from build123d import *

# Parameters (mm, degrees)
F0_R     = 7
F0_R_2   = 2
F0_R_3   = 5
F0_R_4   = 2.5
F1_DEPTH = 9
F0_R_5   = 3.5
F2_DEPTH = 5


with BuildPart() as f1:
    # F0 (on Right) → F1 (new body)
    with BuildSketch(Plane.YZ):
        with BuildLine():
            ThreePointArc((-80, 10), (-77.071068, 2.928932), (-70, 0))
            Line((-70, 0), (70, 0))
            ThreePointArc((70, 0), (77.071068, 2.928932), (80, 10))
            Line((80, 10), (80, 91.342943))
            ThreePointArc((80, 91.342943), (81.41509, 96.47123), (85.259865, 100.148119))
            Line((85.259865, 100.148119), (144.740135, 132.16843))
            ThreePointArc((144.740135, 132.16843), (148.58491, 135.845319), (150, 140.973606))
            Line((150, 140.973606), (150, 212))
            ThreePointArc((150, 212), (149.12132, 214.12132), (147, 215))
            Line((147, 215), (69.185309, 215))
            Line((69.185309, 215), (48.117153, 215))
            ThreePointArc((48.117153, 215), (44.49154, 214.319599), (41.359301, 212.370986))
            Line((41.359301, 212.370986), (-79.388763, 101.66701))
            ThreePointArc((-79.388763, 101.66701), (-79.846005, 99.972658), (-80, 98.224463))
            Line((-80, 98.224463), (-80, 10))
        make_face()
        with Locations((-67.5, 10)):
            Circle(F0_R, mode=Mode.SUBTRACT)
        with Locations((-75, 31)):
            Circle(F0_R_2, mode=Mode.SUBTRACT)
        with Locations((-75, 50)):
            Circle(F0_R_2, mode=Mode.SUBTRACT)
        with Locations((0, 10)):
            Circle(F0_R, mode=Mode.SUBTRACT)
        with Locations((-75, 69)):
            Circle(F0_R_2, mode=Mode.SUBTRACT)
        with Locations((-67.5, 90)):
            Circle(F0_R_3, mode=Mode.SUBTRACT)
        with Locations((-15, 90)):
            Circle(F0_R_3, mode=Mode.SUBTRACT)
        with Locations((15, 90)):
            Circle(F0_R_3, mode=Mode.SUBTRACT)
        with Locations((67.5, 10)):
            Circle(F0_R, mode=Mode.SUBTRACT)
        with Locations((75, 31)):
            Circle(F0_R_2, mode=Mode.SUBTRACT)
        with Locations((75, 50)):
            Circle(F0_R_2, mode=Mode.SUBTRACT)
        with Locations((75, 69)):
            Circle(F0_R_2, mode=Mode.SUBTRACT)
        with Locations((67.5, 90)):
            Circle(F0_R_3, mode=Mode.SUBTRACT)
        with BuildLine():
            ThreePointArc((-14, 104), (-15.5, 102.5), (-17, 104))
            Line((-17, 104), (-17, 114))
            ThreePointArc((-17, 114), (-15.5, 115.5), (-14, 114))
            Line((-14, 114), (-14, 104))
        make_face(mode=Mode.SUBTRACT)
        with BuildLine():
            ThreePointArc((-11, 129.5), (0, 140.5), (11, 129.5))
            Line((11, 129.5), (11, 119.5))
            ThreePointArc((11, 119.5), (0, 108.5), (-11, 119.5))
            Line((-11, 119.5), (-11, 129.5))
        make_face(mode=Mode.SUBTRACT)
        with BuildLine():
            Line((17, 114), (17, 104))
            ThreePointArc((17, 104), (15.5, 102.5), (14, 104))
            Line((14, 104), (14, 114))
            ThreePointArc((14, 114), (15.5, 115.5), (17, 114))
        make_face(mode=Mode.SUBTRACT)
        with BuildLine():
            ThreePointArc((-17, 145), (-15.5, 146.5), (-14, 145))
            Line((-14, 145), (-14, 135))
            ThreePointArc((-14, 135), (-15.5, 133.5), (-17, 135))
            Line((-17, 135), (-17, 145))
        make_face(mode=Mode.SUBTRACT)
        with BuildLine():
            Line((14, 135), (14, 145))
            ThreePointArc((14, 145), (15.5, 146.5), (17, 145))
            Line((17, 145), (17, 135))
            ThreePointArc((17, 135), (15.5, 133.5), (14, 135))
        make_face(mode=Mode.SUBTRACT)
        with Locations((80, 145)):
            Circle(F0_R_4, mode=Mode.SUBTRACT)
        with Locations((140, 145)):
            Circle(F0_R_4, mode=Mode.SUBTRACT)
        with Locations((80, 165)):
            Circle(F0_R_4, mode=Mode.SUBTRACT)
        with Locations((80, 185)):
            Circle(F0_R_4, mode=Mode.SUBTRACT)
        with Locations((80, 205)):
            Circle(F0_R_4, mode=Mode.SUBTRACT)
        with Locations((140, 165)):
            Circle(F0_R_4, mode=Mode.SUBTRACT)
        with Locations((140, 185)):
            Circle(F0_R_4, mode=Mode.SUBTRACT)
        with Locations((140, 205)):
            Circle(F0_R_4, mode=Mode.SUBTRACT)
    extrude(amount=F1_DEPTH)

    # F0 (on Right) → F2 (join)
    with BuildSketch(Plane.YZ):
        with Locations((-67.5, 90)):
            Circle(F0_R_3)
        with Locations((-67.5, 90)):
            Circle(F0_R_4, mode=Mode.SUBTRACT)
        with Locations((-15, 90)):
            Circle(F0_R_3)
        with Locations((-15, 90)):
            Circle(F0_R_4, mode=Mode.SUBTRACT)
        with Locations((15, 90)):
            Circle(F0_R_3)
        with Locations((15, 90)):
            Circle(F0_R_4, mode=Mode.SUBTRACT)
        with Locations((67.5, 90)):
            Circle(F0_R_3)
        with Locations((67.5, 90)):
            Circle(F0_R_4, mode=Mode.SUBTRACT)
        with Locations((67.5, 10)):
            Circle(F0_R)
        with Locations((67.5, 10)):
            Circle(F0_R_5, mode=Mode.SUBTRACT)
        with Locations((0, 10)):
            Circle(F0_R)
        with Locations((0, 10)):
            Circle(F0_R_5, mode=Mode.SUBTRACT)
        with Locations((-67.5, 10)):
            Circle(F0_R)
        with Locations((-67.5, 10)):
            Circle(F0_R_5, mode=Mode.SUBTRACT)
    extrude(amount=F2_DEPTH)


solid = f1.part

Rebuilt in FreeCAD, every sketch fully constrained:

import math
import FreeCAD as App
import Part
import Sketcher
Q = App.Units.Quantity

doc = App.newDocument("Part")
body = doc.addObject("PartDesign::Body", "Body")

# Sketch on YZ plane
sketch1 = doc.addObject("Sketcher::SketchObject", "Sketch")
body.addObject(sketch1)
sketch1.AttachmentSupport = (doc.YZ_Plane, [""])
sketch1.MapMode = "FlatFace"
sketch1.addGeometry([
    Part.ArcOfCircle(Part.Circle(App.Vector(-70.000001, 9.999999, 0), App.Vector(0, 0, 1), 9.999999), math.radians(179.999996), math.radians(270.000004)),  # 0
    Part.LineSegment(App.Vector(-70, 0, 0), App.Vector(70, 0, 0)),  # 1
    Part.ArcOfCircle(Part.Circle(App.Vector(70.000001, 9.999999, 0), App.Vector(0, 0, 1), 9.999999), math.radians(-90.000004), math.radians(0.000004)),  # 2
    Part.LineSegment(App.Vector(80, 10, 0), App.Vector(80, 91.342943, 0)),  # 3
    Part.ArcOfCircle(Part.Circle(App.Vector(89.999999, 91.342944, 0), App.Vector(0, 0, 1), 9.999999), math.radians(118.295134), math.radians(180.000006)),  # 4
    Part.LineSegment(App.Vector(85.259865, 100.148119, 0), App.Vector(144.740135, 132.16843, 0)),  # 5
    Part.ArcOfCircle(Part.Circle(App.Vector(140.000001, 140.973605, 0), App.Vector(0, 0, 1), 9.999999), math.radians(-61.704866), math.radians(0.000006)),  # 6
    Part.LineSegment(App.Vector(150, 140.973606, 0), App.Vector(150, 212, 0)),  # 7
    Part.ArcOfCircle(Part.Circle(App.Vector(146.999999, 211.999999, 0), App.Vector(0, 0, 1), 3.000001), math.radians(0.000022), math.radians(89.999978)),  # 8
    Part.LineSegment(App.Vector(147, 215, 0), App.Vector(48.117153, 215, 0)),  # 9
    Part.ArcOfCircle(Part.Circle(App.Vector(48.117154, 204.999997, 0), App.Vector(0, 0, 1), 10.000003), math.radians(90.000007), math.radians(132.51515)),  # 10
    Part.LineSegment(App.Vector(41.359301, 212.370986, 0), App.Vector(-79.388763, 101.66701, 0)),  # 11
    Part.ArcOfCircle(Part.Circle(App.Vector(-70, 98.224463, 0), App.Vector(0, 0, 1), 10), math.radians(159.863694), math.radians(180)),  # 12
    Part.LineSegment(App.Vector(-80, 98.224463, 0), App.Vector(-80, 10, 0)),  # 13
    Part.Circle(App.Vector(-67.5, 10, 0), App.Vector(0, 0, 1), 7),  # 14
    Part.Circle(App.Vector(-75, 31, 0), App.Vector(0, 0, 1), 2),  # 15
    Part.Circle(App.Vector(-75, 50, 0), App.Vector(0, 0, 1), 2),  # 16
    Part.Circle(App.Vector(0, 10, 0), App.Vector(0, 0, 1), 7),  # 17
    Part.Circle(App.Vector(-75, 69, 0), App.Vector(0, 0, 1), 2),  # 18
    Part.Circle(App.Vector(-67.5, 90, 0), App.Vector(0, 0, 1), 5),  # 19
    Part.Circle(App.Vector(-15, 90, 0), App.Vector(0, 0, 1), 5),  # 20
    Part.Circle(App.Vector(15, 90, 0), App.Vector(0, 0, 1), 5),  # 21
    Part.Circle(App.Vector(67.5, 10, 0), App.Vector(0, 0, 1), 7),  # 22
    Part.Circle(App.Vector(75, 31, 0), App.Vector(0, 0, 1), 2),  # 23
    Part.Circle(App.Vector(75, 50, 0), App.Vector(0, 0, 1), 2),  # 24
    Part.Circle(App.Vector(75, 69, 0), App.Vector(0, 0, 1), 2),  # 25
    Part.Circle(App.Vector(67.5, 90, 0), App.Vector(0, 0, 1), 5),  # 26
    Part.LineSegment(App.Vector(-14, 114, 0), App.Vector(-14, 104, 0)),  # 27
    Part.ArcOfCircle(Part.Circle(App.Vector(-15.5, 104, 0), App.Vector(0, 0, 1), 1.5), math.radians(180), math.radians(360)),  # 28
    Part.LineSegment(App.Vector(-17, 104, 0), App.Vector(-17, 114, 0)),  # 29
    Part.ArcOfCircle(Part.Circle(App.Vector(-15.5, 114, 0), App.Vector(0, 0, 1), 1.5), math.radians(0), math.radians(180)),  # 30
    Part.LineSegment(App.Vector(-11, 119.5, 0), App.Vector(-11, 129.5, 0)),  # 31
    Part.ArcOfCircle(Part.Circle(App.Vector(0, 129.5, 0), App.Vector(0, 0, 1), 11), math.radians(0), math.radians(180)),  # 32
    Part.LineSegment(App.Vector(11, 129.5, 0), App.Vector(11, 119.5, 0)),  # 33
    Part.ArcOfCircle(Part.Circle(App.Vector(0, 119.5, 0), App.Vector(0, 0, 1), 11), math.radians(180), math.radians(360)),  # 34
    Part.ArcOfCircle(Part.Circle(App.Vector(15.5, 114, 0), App.Vector(0, 0, 1), 1.5), math.radians(0), math.radians(180)),  # 35
    Part.LineSegment(App.Vector(17, 114, 0), App.Vector(17, 104, 0)),  # 36
    Part.ArcOfCircle(Part.Circle(App.Vector(15.5, 104, 0), App.Vector(0, 0, 1), 1.5), math.radians(180), math.radians(360)),  # 37
    Part.LineSegment(App.Vector(14, 104, 0), App.Vector(14, 114, 0)),  # 38
    Part.LineSegment(App.Vector(-17, 135, 0), App.Vector(-17, 145, 0)),  # 39
    Part.ArcOfCircle(Part.Circle(App.Vector(-15.5, 145, 0), App.Vector(0, 0, 1), 1.5), math.radians(0), math.radians(180)),  # 40
    Part.LineSegment(App.Vector(-14, 145, 0), App.Vector(-14, 135, 0)),  # 41
    Part.ArcOfCircle(Part.Circle(App.Vector(-15.5, 135, 0), App.Vector(0, 0, 1), 1.5), math.radians(180), math.radians(360)),  # 42
    Part.ArcOfCircle(Part.Circle(App.Vector(15.5, 135, 0), App.Vector(0, 0, 1), 1.5), math.radians(180), math.radians(360)),  # 43
    Part.LineSegment(App.Vector(14, 135, 0), App.Vector(14, 145, 0)),  # 44
    Part.ArcOfCircle(Part.Circle(App.Vector(15.5, 145, 0), App.Vector(0, 0, 1), 1.5), math.radians(0), math.radians(180)),  # 45
    Part.LineSegment(App.Vector(17, 145, 0), App.Vector(17, 135, 0)),  # 46
    Part.Circle(App.Vector(80, 145, 0), App.Vector(0, 0, 1), 2.5),  # 47
    Part.Circle(App.Vector(140, 145, 0), App.Vector(0, 0, 1), 2.5),  # 48
    Part.Circle(App.Vector(80, 165, 0), App.Vector(0, 0, 1), 2.5),  # 49
    Part.Circle(App.Vector(80, 185, 0), App.Vector(0, 0, 1), 2.5),  # 50
    Part.Circle(App.Vector(80, 205, 0), App.Vector(0, 0, 1), 2.5),  # 51
    Part.Circle(App.Vector(140, 165, 0), App.Vector(0, 0, 1), 2.5),  # 52
    Part.Circle(App.Vector(140, 185, 0), App.Vector(0, 0, 1), 2.5),  # 53
    Part.Circle(App.Vector(140, 205, 0), App.Vector(0, 0, 1), 2.5),  # 54
], False)
sketch1.addConstraint([
    Sketcher.Constraint("Coincident", 0, 2, 1, 1),
    Sketcher.Constraint("Coincident", 1, 2, 2, 1),
    Sketcher.Constraint("Coincident", 2, 2, 3, 1),
    Sketcher.Constraint("Coincident", 3, 2, 4, 2),
    Sketcher.Constraint("Coincident", 4, 1, 5, 1),
    Sketcher.Constraint("Coincident", 5, 2, 6, 1),
    Sketcher.Constraint("Coincident", 6, 2, 7, 1),
    Sketcher.Constraint("Coincident", 7, 2, 8, 1),
    Sketcher.Constraint("Coincident", 8, 2, 9, 1),
    Sketcher.Constraint("Coincident", 9, 2, 10, 1),
    Sketcher.Constraint("Coincident", 10, 2, 11, 1),
    Sketcher.Constraint("Coincident", 11, 2, 12, 1),
    Sketcher.Constraint("Coincident", 12, 2, 13, 1),
    Sketcher.Constraint("Coincident", 13, 2, 0, 1),
    Sketcher.Constraint("Coincident", 27, 2, 28, 2),
    Sketcher.Constraint("Coincident", 28, 1, 29, 1),
    Sketcher.Constraint("Coincident", 29, 2, 30, 2),
    Sketcher.Constraint("Coincident", 30, 1, 27, 1),
    Sketcher.Constraint("Coincident", 31, 2, 32, 2),
    Sketcher.Constraint("Coincident", 32, 1, 33, 1),
    Sketcher.Constraint("Coincident", 33, 2, 34, 2),
    Sketcher.Constraint("Coincident", 34, 1, 31, 1),
    Sketcher.Constraint("Coincident", 35, 1, 36, 1),
    Sketcher.Constraint("Coincident", 36, 2, 37, 2),
    Sketcher.Constraint("Coincident", 37, 1, 38, 1),
    Sketcher.Constraint("Coincident", 38, 2, 35, 2),
    Sketcher.Constraint("Coincident", 39, 2, 40, 2),
    Sketcher.Constraint("Coincident", 40, 1, 41, 1),
    Sketcher.Constraint("Coincident", 41, 2, 42, 2),
    Sketcher.Constraint("Coincident", 42, 1, 39, 1),
    Sketcher.Constraint("Coincident", 43, 1, 44, 1),
    Sketcher.Constraint("Coincident", 44, 2, 45, 2),
    Sketcher.Constraint("Coincident", 45, 1, 46, 1),
    Sketcher.Constraint("Coincident", 46, 2, 43, 2),
    Sketcher.Constraint("Horizontal", 1),
    Sketcher.Constraint("Vertical", 3),
    Sketcher.Constraint("Vertical", 7),
    Sketcher.Constraint("Horizontal", 9),
    Sketcher.Constraint("Vertical", 13),
    Sketcher.Constraint("Vertical", 27),
    Sketcher.Constraint("Vertical", 29),
    Sketcher.Constraint("Vertical", 31),
    Sketcher.Constraint("Vertical", 33),
    Sketcher.Constraint("Vertical", 36),
    Sketcher.Constraint("Vertical", 38),
    Sketcher.Constraint("Vertical", 39),
    Sketcher.Constraint("Vertical", 41),
    Sketcher.Constraint("Vertical", 44),
    Sketcher.Constraint("Vertical", 46),
    Sketcher.Constraint("PointOnObject", 17, 3, -2),
    Sketcher.Constraint("PointOnObject", 32, 3, -2),
    Sketcher.Constraint("PointOnObject", 0, 2, -1),
    Sketcher.Constraint("Diameter", 14, Q("14 mm")),
    Sketcher.Constraint("Diameter", 15, Q("4 mm")),
    Sketcher.Constraint("Diameter", 16, Q("4 mm")),
    Sketcher.Constraint("Diameter", 17, Q("14 mm")),
    Sketcher.Constraint("Diameter", 18, Q("4 mm")),
    Sketcher.Constraint("Diameter", 19, Q("10 mm")),
    Sketcher.Constraint("Diameter", 20, Q("10 mm")),
    Sketcher.Constraint("Diameter", 21, Q("10 mm")),
    Sketcher.Constraint("Diameter", 22, Q("14 mm")),
    Sketcher.Constraint("Diameter", 23, Q("4 mm")),
    Sketcher.Constraint("Diameter", 24, Q("4 mm")),
    Sketcher.Constraint("Diameter", 25, Q("4 mm")),
    Sketcher.Constraint("Diameter", 26, Q("10 mm")),
    Sketcher.Constraint("Diameter", 47, Q("5 mm")),
    Sketcher.Constraint("Diameter", 48, Q("5 mm")),
    Sketcher.Constraint("Diameter", 49, Q("5 mm")),
    Sketcher.Constraint("Diameter", 50, Q("5 mm")),
    Sketcher.Constraint("Diameter", 51, Q("5 mm")),
    Sketcher.Constraint("Diameter", 52, Q("5 mm")),
    Sketcher.Constraint("Diameter", 53, Q("5 mm")),
    Sketcher.Constraint("Diameter", 54, Q("5 mm")),
    Sketcher.Constraint("Radius", 0, Q("9.999999 mm")),
    Sketcher.Constraint("Radius", 2, Q("9.999999 mm")),
    Sketcher.Constraint("Radius", 4, Q("9.999999 mm")),
    Sketcher.Constraint("Radius", 6, Q("9.999999 mm")),
    Sketcher.Constraint("Radius", 8, Q("3.000001 mm")),
    Sketcher.Constraint("Radius", 12, Q("10 mm")),
    Sketcher.Constraint("Radius", 32, Q("11 mm")),
    Sketcher.Constraint("Radius", 28, Q("1.5 mm")),
    Sketcher.Constraint("Radius", 35, Q("1.5 mm")),
    Sketcher.Constraint("Radius", 40, Q("1.5 mm")),
    Sketcher.Constraint("Radius", 43, Q("1.5 mm")),
    Sketcher.Constraint("DistanceX", 1, 1, 1, 2, Q("140 mm")),
    Sketcher.Constraint("DistanceY", 27, 2, 27, 1, Q("10 mm")),
    Sketcher.Constraint("DistanceY", 29, 1, 29, 2, Q("10 mm")),
    Sketcher.Constraint("DistanceY", 31, 1, 31, 2, Q("10 mm")),
    Sketcher.Constraint("DistanceY", 33, 2, 33, 1, Q("10 mm")),
    Sketcher.Constraint("DistanceY", 36, 2, 36, 1, Q("10 mm")),
    Sketcher.Constraint("DistanceY", 38, 1, 38, 2, Q("10 mm")),
    Sketcher.Constraint("DistanceY", 39, 1, 39, 2, Q("10 mm")),
    Sketcher.Constraint("DistanceY", 41, 2, 41, 1, Q("10 mm")),
    Sketcher.Constraint("DistanceY", 44, 1, 44, 2, Q("10 mm")),
    Sketcher.Constraint("DistanceY", 46, 2, 46, 1, Q("10 mm")),
    Sketcher.Constraint("DistanceX", 0, 3, -1, 1, Q("70.000001 mm")),
    Sketcher.Constraint("DistanceX", -1, 1, 2, 3, Q("70.000001 mm")),
    Sketcher.Constraint("DistanceX", -1, 1, 6, 3, Q("140.000001 mm")),
    Sketcher.Constraint("DistanceY", -1, 1, 8, 3, Q("211.999999 mm")),
    Sketcher.Constraint("DistanceY", -1, 1, 14, 3, Q("10 mm")),
    Sketcher.Constraint("DistanceX", 15, 3, -1, 1, Q("75 mm")),
    Sketcher.Constraint("DistanceY", -1, 1, 15, 3, Q("31 mm")),
    Sketcher.Constraint("DistanceX", 16, 3, -1, 1, Q("75 mm")),
    Sketcher.Constraint("DistanceY", -1, 1, 16, 3, Q("50 mm")),
    Sketcher.Constraint("DistanceY", -1, 1, 17, 3, Q("10 mm")),
    Sketcher.Constraint("DistanceX", 18, 3, -1, 1, Q("75 mm")),
    Sketcher.Constraint("DistanceY", -1, 1, 18, 3, Q("69 mm")),
    Sketcher.Constraint("DistanceY", -1, 1, 19, 3, Q("90 mm")),
    Sketcher.Constraint("DistanceX", 20, 3, -1, 1, Q("15 mm")),
    Sketcher.Constraint("DistanceY", -1, 1, 20, 3, Q("90 mm")),
    Sketcher.Constraint("DistanceX", -1, 1, 21, 3, Q("15 mm")),
    Sketcher.Constraint("DistanceY", -1, 1, 21, 3, Q("90 mm")),
    Sketcher.Constraint("DistanceY", -1, 1, 22, 3, Q("10 mm")),
    Sketcher.Constraint("DistanceX", -1, 1, 23, 3, Q("75 mm")),
    Sketcher.Constraint("DistanceY", -1, 1, 23, 3, Q("31 mm")),
    Sketcher.Constraint("DistanceX", -1, 1, 24, 3, Q("75 mm")),
    Sketcher.Constraint("DistanceY", -1, 1, 24, 3, Q("50 mm")),
    Sketcher.Constraint("DistanceX", -1, 1, 25, 3, Q("75 mm")),
    Sketcher.Constraint("DistanceY", -1, 1, 25, 3, Q("69 mm")),
    Sketcher.Constraint("DistanceY", -1, 1, 26, 3, Q("90 mm")),
    Sketcher.Constraint("DistanceY", -1, 1, 28, 3, Q("104 mm")),
    Sketcher.Constraint("DistanceY", -1, 1, 30, 3, Q("114 mm")),
    Sketcher.Constraint("DistanceY", -1, 1, 35, 3, Q("114 mm")),
    Sketcher.Constraint("DistanceY", -1, 1, 37, 3, Q("104 mm")),
    Sketcher.Constraint("DistanceY", -1, 1, 40, 3, Q("145 mm")),
    Sketcher.Constraint("DistanceY", -1, 1, 42, 3, Q("135 mm")),
    Sketcher.Constraint("DistanceY", -1, 1, 43, 3, Q("135 mm")),
    Sketcher.Constraint("DistanceY", -1, 1, 45, 3, Q("145 mm")),
    Sketcher.Constraint("DistanceX", -1, 1, 47, 3, Q("80 mm")),
    Sketcher.Constraint("DistanceY", -1, 1, 47, 3, Q("145 mm")),
    Sketcher.Constraint("DistanceX", -1, 1, 48, 3, Q("140 mm")),
    Sketcher.Constraint("DistanceY", -1, 1, 48, 3, Q("145 mm")),
    Sketcher.Constraint("DistanceX", -1, 1, 49, 3, Q("80 mm")),
    Sketcher.Constraint("DistanceY", -1, 1, 49, 3, Q("165 mm")),
    Sketcher.Constraint("DistanceX", -1, 1, 50, 3, Q("80 mm")),
    Sketcher.Constraint("DistanceY", -1, 1, 50, 3, Q("185 mm")),
    Sketcher.Constraint("DistanceX", -1, 1, 51, 3, Q("80 mm")),
    Sketcher.Constraint("DistanceY", -1, 1, 51, 3, Q("205 mm")),
    Sketcher.Constraint("DistanceX", -1, 1, 52, 3, Q("140 mm")),
    Sketcher.Constraint("DistanceY", -1, 1, 52, 3, Q("165 mm")),
    Sketcher.Constraint("DistanceX", -1, 1, 53, 3, Q("140 mm")),
    Sketcher.Constraint("DistanceY", -1, 1, 53, 3, Q("185 mm")),
    Sketcher.Constraint("DistanceX", -1, 1, 54, 3, Q("140 mm")),
    Sketcher.Constraint("DistanceY", -1, 1, 54, 3, Q("205 mm")),
    Sketcher.Constraint("DistanceX", 0, 2, -1, 1, Q("70 mm")),
    Sketcher.Constraint("DistanceY", -1, 1, 2, 2, Q("10 mm")),
    Sketcher.Constraint("DistanceY", -1, 1, 7, 2, Q("212 mm")),
    Sketcher.Constraint("DistanceX", -1, 1, 8, 2, Q("147 mm")),
    Sketcher.Constraint("DistanceY", -1, 1, 13, 2, Q("10 mm")),
    Sketcher.Constraint("DistanceX", 27, 2, -1, 1, Q("14 mm")),
    Sketcher.Constraint("DistanceY", -1, 1, 27, 2, Q("104 mm")),
    Sketcher.Constraint("DistanceY", -1, 1, 28, 1, Q("104 mm")),
    Sketcher.Constraint("DistanceX", -1, 1, 35, 1, Q("17 mm")),
    Sketcher.Constraint("DistanceY", -1, 1, 35, 1, Q("114 mm")),
    Sketcher.Constraint("DistanceY", -1, 1, 37, 1, Q("104 mm")),
    Sketcher.Constraint("DistanceX", 39, 2, -1, 1, Q("17 mm")),
    Sketcher.Constraint("DistanceY", -1, 1, 39, 2, Q("145 mm")),
    Sketcher.Constraint("DistanceY", -1, 1, 40, 1, Q("145 mm")),
    Sketcher.Constraint("DistanceX", -1, 1, 43, 1, Q("14 mm")),
    Sketcher.Constraint("DistanceY", -1, 1, 43, 1, Q("135 mm")),
    Sketcher.Constraint("DistanceY", -1, 1, 45, 1, Q("145 mm")),
    Sketcher.Constraint("DistanceX", 14, 3, -1, 1, Q("67.5 mm")),
    Sketcher.Constraint("DistanceX", 19, 3, -1, 1, Q("67.5 mm")),
    Sketcher.Constraint("DistanceX", -1, 1, 22, 3, Q("67.5 mm")),
    Sketcher.Constraint("DistanceX", -1, 1, 26, 3, Q("67.5 mm")),
    Sketcher.Constraint("DistanceY", -1, 1, 32, 3, Q("129.5 mm")),
    Sketcher.Constraint("DistanceY", -1, 1, 34, 3, Q("119.5 mm")),
    Sketcher.Constraint("DistanceY", -1, 1, 31, 2, Q("129.5 mm")),
    Sketcher.Constraint("DistanceY", -1, 1, 32, 1, Q("129.5 mm")),
    Sketcher.Constraint("Radius", 10, Q("10.000003 mm")),
    Sketcher.Constraint("DistanceX", -1, 1, 10, 2, Q("41.359301 mm")),
    Sketcher.Constraint("Distance", 11, Q("163.815339 mm")),
    Sketcher.Constraint("DistanceX", 9, 2, 9, 1, Q("98.882847 mm")),
    Sketcher.Constraint("DistanceY", 3, 1, 3, 2, Q("81.342943 mm")),
    Sketcher.Constraint("DistanceY", 7, 1, 7, 2, Q("71.026394 mm")),
    Sketcher.Constraint("DistanceY", 13, 2, 13, 1, Q("88.224463 mm")),
    Sketcher.Constraint("DistanceY", -1, 1, 4, 1, Q("100.148119 mm")),
    Sketcher.Constraint("DistanceY", -1, 1, 5, 2, Q("132.16843 mm")),
    Sketcher.Constraint("DistanceY", -1, 1, 11, 2, Q("101.66701 mm")),
    Sketcher.Constraint("Distance", 5, Q("67.551483 mm")),
    Sketcher.Constraint("DistanceY", -1, 1, 4, 3, Q("91.342944 mm")),
    Sketcher.Constraint("DistanceX", -1, 1, 10, 3, Q("48.117154 mm")),
])
pad1 = doc.addObject("PartDesign::Pad", "Pad")
body.addObject(pad1)
pad1.Profile = sketch1
pad1.Length = 9

# Sketch on YZ plane
sketch2 = doc.addObject("Sketcher::SketchObject", "Sketch001")
body.addObject(sketch2)
sketch2.AttachmentSupport = (doc.YZ_Plane, [""])
sketch2.MapMode = "FlatFace"
sketch2.addGeometry([
    Part.Circle(App.Vector(-67.5, 90, 0), App.Vector(0, 0, 1), 5),  # 0
    Part.Circle(App.Vector(-67.5, 90, 0), App.Vector(0, 0, 1), 2.5),  # 1
    Part.Circle(App.Vector(-15, 90, 0), App.Vector(0, 0, 1), 5),  # 2
    Part.Circle(App.Vector(-15, 90, 0), App.Vector(0, 0, 1), 2.5),  # 3
    Part.Circle(App.Vector(15, 90, 0), App.Vector(0, 0, 1), 5),  # 4
    Part.Circle(App.Vector(15, 90, 0), App.Vector(0, 0, 1), 2.5),  # 5
    Part.Circle(App.Vector(67.5, 90, 0), App.Vector(0, 0, 1), 5),  # 6
    Part.Circle(App.Vector(67.5, 90, 0), App.Vector(0, 0, 1), 2.5),  # 7
    Part.Circle(App.Vector(67.5, 10, 0), App.Vector(0, 0, 1), 7),  # 8
    Part.Circle(App.Vector(67.5, 10, 0), App.Vector(0, 0, 1), 3.5),  # 9
    Part.Circle(App.Vector(0, 10, 0), App.Vector(0, 0, 1), 7),  # 10
    Part.Circle(App.Vector(0, 10, 0), App.Vector(0, 0, 1), 3.5),  # 11
    Part.Circle(App.Vector(-67.5, 10, 0), App.Vector(0, 0, 1), 7),  # 12
    Part.Circle(App.Vector(-67.5, 10, 0), App.Vector(0, 0, 1), 3.5),  # 13
], False)
sketch2.addConstraint([
    Sketcher.Constraint("Coincident", 1, 3, 0, 3),
    Sketcher.Constraint("Coincident", 3, 3, 2, 3),
    Sketcher.Constraint("Coincident", 5, 3, 4, 3),
    Sketcher.Constraint("Coincident", 7, 3, 6, 3),
    Sketcher.Constraint("Coincident", 9, 3, 8, 3),
    Sketcher.Constraint("Coincident", 11, 3, 10, 3),
    Sketcher.Constraint("Coincident", 13, 3, 12, 3),
    Sketcher.Constraint("Equal", 0, 2),
    Sketcher.Constraint("Equal", 1, 3),
    Sketcher.Constraint("Equal", 2, 4),
    Sketcher.Constraint("Equal", 3, 5),
    Sketcher.Constraint("Equal", 4, 6),
    Sketcher.Constraint("Equal", 5, 7),
    Sketcher.Constraint("Equal", 8, 10),
    Sketcher.Constraint("Equal", 9, 11),
    Sketcher.Constraint("Equal", 10, 12),
    Sketcher.Constraint("Equal", 11, 13),
    Sketcher.Constraint("Symmetric", 2, 3, 4, 3, -2),
    Sketcher.Constraint("Symmetric", 0, 3, 6, 3, -2),
    Sketcher.Constraint("Symmetric", 8, 3, 12, 3, -2),
    Sketcher.Constraint("PointOnObject", 10, 3, -2),
    Sketcher.Constraint("Horizontal", 1, 3, 2, 3),
    Sketcher.Constraint("Horizontal", 9, 3, 10, 3),
    Sketcher.Constraint("Vertical", 7, 3, 8, 3),
    Sketcher.Constraint("Diameter", 0, Q("10 mm")),
    Sketcher.Constraint("Diameter", 1, Q("5 mm")),
    Sketcher.Constraint("Diameter", 8, Q("14 mm")),
    Sketcher.Constraint("Diameter", 9, Q("7 mm")),
    Sketcher.Constraint("DistanceY", -1, 1, 0, 3, Q("90 mm")),
    Sketcher.Constraint("DistanceX", 2, 3, -1, 1, Q("15 mm")),
    Sketcher.Constraint("DistanceY", -1, 1, 8, 3, Q("10 mm")),
    Sketcher.Constraint("DistanceX", 0, 3, 6, 3, Q("135 mm")),
])
pad2 = doc.addObject("PartDesign::Pad", "Pad001")
body.addObject(pad2)
pad2.Profile = sketch2
pad2.Length = 5

doc.recompute()
